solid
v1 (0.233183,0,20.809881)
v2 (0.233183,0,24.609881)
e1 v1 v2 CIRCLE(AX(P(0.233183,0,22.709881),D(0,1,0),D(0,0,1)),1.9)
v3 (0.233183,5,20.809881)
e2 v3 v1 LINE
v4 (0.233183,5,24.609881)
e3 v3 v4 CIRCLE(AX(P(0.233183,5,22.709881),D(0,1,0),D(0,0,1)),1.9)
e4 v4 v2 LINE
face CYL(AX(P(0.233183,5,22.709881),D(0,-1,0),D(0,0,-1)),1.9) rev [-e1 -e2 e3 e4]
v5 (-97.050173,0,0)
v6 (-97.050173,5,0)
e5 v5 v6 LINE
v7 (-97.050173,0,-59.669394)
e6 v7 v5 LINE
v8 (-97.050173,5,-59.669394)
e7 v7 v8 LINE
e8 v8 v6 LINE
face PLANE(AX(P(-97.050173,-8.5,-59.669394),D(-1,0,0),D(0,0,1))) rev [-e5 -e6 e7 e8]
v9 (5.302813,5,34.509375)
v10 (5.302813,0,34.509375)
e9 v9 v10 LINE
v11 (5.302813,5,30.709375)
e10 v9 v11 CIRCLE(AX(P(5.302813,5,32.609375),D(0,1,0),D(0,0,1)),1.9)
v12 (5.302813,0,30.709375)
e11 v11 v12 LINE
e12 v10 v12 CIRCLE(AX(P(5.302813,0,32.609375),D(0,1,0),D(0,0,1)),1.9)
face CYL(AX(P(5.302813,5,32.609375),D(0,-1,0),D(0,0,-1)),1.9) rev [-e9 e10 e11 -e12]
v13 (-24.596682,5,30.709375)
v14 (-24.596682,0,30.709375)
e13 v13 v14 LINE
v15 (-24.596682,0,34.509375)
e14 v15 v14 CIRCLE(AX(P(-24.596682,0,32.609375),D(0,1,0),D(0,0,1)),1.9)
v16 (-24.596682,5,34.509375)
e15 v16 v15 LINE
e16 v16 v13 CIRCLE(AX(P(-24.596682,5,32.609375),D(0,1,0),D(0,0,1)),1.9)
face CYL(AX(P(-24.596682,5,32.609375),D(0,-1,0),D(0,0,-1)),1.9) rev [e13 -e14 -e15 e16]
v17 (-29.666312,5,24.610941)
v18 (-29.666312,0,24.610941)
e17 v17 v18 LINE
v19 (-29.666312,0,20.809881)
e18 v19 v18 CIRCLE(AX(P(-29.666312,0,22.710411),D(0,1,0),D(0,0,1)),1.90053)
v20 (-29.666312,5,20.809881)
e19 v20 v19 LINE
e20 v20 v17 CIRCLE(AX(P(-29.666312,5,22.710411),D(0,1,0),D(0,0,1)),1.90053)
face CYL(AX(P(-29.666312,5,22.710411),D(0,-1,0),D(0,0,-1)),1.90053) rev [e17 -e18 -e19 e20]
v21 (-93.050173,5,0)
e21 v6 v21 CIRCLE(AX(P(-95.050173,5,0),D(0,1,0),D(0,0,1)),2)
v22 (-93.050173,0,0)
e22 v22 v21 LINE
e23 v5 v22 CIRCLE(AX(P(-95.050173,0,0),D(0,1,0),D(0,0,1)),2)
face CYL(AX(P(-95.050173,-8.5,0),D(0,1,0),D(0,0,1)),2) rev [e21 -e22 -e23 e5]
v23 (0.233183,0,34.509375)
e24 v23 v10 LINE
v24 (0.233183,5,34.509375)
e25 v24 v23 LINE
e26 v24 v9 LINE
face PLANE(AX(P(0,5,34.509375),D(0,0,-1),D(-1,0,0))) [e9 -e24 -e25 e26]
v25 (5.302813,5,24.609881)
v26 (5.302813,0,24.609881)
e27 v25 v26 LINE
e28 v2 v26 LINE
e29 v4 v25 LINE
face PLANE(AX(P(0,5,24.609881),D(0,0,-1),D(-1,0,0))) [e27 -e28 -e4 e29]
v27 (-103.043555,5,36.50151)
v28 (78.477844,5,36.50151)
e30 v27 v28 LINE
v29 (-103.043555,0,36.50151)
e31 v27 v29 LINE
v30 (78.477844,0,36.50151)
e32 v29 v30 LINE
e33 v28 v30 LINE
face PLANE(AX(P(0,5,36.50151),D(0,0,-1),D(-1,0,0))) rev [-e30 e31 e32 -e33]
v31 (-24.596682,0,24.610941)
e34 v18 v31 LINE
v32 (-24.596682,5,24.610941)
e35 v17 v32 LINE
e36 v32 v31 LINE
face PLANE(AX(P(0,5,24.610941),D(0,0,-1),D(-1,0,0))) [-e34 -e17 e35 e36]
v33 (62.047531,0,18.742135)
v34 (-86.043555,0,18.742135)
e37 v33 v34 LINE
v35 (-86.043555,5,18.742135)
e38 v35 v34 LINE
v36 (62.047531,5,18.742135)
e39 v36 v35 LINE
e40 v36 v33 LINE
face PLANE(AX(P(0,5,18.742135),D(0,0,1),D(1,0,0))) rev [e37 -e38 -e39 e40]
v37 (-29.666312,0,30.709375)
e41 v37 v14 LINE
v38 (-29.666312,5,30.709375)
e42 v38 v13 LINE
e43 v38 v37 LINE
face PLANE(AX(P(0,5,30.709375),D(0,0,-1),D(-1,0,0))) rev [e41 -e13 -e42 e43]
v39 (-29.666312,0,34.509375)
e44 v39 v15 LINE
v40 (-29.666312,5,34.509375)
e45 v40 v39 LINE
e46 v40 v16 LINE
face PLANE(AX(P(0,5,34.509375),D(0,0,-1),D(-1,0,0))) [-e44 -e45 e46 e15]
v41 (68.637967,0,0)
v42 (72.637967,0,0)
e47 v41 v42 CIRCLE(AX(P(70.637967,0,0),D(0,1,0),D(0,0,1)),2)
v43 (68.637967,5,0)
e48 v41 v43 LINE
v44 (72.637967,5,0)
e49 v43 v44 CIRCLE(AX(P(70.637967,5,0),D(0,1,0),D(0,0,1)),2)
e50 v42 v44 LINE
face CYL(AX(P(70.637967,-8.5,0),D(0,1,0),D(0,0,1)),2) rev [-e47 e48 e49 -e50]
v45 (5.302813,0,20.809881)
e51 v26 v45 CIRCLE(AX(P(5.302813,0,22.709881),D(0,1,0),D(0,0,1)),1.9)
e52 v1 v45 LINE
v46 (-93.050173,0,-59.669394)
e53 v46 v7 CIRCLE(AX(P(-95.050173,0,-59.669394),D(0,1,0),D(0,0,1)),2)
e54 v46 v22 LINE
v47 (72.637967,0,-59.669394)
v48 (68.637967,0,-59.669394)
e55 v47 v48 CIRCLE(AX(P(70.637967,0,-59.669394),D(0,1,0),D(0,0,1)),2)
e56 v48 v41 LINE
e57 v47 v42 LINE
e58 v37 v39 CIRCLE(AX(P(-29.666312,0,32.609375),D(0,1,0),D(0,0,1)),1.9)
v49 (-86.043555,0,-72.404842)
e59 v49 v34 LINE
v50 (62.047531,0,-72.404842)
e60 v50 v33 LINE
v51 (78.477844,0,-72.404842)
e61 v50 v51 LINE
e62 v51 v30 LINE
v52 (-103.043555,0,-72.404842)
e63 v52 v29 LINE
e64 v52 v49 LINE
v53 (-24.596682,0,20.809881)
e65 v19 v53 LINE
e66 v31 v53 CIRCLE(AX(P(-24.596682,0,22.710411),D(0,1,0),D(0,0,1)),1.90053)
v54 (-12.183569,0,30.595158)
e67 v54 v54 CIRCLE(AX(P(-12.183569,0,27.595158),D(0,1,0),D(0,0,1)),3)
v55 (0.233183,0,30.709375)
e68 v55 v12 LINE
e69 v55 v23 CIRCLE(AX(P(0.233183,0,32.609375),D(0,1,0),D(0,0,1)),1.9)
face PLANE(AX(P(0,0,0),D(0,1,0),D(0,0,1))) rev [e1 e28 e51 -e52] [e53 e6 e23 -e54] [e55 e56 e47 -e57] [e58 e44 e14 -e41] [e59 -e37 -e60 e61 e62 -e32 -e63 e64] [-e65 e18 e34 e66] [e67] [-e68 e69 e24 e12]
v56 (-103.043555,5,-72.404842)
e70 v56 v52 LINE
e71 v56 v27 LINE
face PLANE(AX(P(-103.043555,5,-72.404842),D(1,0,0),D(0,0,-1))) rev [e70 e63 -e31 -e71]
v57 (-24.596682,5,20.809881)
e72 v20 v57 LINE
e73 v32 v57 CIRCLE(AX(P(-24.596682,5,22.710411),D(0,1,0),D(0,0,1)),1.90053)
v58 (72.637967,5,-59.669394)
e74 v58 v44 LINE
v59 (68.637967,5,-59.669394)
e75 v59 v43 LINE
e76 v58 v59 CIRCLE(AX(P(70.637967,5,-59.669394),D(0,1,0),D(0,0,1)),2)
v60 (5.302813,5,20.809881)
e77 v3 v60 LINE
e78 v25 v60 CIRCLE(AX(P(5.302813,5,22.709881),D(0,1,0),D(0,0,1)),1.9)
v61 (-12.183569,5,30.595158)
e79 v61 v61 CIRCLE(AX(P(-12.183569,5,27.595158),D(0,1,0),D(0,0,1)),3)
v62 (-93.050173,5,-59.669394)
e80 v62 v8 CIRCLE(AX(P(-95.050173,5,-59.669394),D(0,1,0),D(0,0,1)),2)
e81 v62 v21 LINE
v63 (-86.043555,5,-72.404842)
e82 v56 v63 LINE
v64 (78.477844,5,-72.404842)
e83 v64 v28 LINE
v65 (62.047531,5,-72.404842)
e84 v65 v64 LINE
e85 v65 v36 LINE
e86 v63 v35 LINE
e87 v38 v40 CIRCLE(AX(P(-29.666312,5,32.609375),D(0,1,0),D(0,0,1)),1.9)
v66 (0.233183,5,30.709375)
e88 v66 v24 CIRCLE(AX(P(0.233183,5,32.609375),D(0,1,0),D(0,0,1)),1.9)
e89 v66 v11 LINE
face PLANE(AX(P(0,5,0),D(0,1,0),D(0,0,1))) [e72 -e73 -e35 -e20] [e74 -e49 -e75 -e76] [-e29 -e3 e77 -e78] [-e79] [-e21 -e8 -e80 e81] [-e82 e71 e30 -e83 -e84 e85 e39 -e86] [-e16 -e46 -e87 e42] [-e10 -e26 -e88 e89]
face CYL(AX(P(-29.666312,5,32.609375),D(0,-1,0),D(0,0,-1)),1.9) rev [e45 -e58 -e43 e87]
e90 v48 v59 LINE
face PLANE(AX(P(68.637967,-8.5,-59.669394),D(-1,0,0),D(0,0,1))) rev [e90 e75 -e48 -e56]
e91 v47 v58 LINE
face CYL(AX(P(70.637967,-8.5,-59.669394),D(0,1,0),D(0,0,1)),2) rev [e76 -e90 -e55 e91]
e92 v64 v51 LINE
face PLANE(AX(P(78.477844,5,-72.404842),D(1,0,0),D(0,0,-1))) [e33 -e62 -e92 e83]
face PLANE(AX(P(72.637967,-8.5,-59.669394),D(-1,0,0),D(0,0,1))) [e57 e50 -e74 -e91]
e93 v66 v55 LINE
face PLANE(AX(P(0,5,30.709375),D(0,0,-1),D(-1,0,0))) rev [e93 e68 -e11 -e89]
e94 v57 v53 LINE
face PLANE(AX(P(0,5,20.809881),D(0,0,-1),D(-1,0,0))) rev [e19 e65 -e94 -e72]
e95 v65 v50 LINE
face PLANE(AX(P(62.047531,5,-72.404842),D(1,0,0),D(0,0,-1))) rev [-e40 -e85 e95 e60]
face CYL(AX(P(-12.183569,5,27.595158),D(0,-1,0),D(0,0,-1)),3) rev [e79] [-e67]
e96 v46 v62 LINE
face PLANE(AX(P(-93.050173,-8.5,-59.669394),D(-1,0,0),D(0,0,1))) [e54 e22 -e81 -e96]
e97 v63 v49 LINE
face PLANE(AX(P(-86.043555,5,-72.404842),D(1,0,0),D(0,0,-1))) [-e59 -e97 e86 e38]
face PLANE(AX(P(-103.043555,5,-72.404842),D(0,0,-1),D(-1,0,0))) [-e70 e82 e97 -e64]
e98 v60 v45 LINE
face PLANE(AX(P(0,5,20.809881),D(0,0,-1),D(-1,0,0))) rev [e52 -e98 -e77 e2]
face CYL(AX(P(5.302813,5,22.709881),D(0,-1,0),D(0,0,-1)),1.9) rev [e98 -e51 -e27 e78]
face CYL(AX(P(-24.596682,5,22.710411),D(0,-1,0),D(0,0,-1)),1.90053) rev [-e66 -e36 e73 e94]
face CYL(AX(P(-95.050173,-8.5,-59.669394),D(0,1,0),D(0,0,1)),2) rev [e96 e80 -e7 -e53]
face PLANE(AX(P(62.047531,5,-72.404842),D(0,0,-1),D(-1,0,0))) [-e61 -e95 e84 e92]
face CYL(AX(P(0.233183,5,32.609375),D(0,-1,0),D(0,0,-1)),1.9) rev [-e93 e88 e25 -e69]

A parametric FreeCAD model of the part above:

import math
import FreeCAD as App
import Part
import Sketcher
Q = App.Units.Quantity

doc = App.newDocument("Part")
body = doc.addObject("PartDesign::Body", "Body")

# Sketch on XZ plane
sketch1 = body.newObject("Sketcher::SketchObject", "Sketch")
sketch1.AttachmentSupport = (doc.getObject("XZ_Plane"), [""])
sketch1.MapMode = "FlatFace"
sketch1.addGeometry([
    Part.LineSegment(App.Vector(-86, -72.4, 0), App.Vector(-103, -72.4, 0)),  # 0
    Part.LineSegment(App.Vector(-103, -72.4, 0), App.Vector(-103, 36.5, 0)),  # 1
    Part.LineSegment(App.Vector(-103, 36.5, 0), App.Vector(78.5, 36.5, 0)),  # 2
    Part.LineSegment(App.Vector(78.5, 36.5, 0), App.Vector(78.5, -72.4, 0)),  # 3
    Part.LineSegment(App.Vector(78.5, -72.4, 0), App.Vector(62, -72.4, 0)),  # 4
    Part.LineSegment(App.Vector(62, -72.4, 0), App.Vector(62, 18.7, 0)),  # 5
    Part.LineSegment(App.Vector(62, 18.7, 0), App.Vector(-86, 18.7, 0)),  # 6
    Part.LineSegment(App.Vector(-86, 18.7, 0), App.Vector(-86, -72.4, 0)),  # 7
    Part.LineSegment(App.Vector(-24.6, 34.5, 0), App.Vector(-29.7, 34.5, 0)),  # 8
    Part.ArcOfCircle(Part.Circle(App.Vector(-29.7, 32.6, 0), App.Vector(0, 0, 1), 1.9), math.radians(90), math.radians(270)),  # 9
    Part.LineSegment(App.Vector(-29.7, 30.7, 0), App.Vector(-24.6, 30.7, 0)),  # 10
    Part.ArcOfCircle(Part.Circle(App.Vector(-24.6, 32.6, 0), App.Vector(0, 0, 1), 1.9), math.radians(-90), math.radians(90)),  # 11
    Part.LineSegment(App.Vector(5.3, 34.5, 0), App.Vector(0.2, 34.5, 0)),  # 12
    Part.ArcOfCircle(Part.Circle(App.Vector(0.2, 32.6, 0), App.Vector(0, 0, 1), 1.9), math.radians(90), math.radians(270)),  # 13
    Part.LineSegment(App.Vector(0.2, 30.7, 0), App.Vector(5.3, 30.7, 0)),  # 14
    Part.ArcOfCircle(Part.Circle(App.Vector(5.3, 32.6, 0), App.Vector(0, 0, 1), 1.9), math.radians(-90), math.radians(90)),  # 15
    Part.Circle(App.Vector(-12.2, 27.6, 0), App.Vector(0, 0, 1), 3),  # 16
    Part.LineSegment(App.Vector(-24.6, 24.6, 0), App.Vector(-29.7, 24.6, 0)),  # 17
    Part.ArcOfCircle(Part.Circle(App.Vector(-29.7, 22.7, 0), App.Vector(0, 0, 1), 1.9), math.radians(90), math.radians(270)),  # 18
    Part.LineSegment(App.Vector(-29.7, 20.8, 0), App.Vector(-24.6, 20.8, 0)),  # 19
    Part.ArcOfCircle(Part.Circle(App.Vector(-24.6, 22.7, 0), App.Vector(0, 0, 1), 1.9), math.radians(-90), math.radians(90)),  # 20
    Part.ArcOfCircle(Part.Circle(App.Vector(0.2, 22.7, 0), App.Vector(0, 0, 1), 1.9), math.radians(90), math.radians(270)),  # 21
    Part.LineSegment(App.Vector(0.2, 20.8, 0), App.Vector(5.3, 20.8, 0)),  # 22
    Part.ArcOfCircle(Part.Circle(App.Vector(5.3, 22.7, 0), App.Vector(0, 0, 1), 1.9), math.radians(-90), math.radians(90)),  # 23
    Part.LineSegment(App.Vector(5.3, 24.6, 0), App.Vector(0.2, 24.6, 0)),  # 24
], False)
sketch1.addConstraint([
    Sketcher.Constraint("Coincident", 0, 2, 1, 1),
    Sketcher.Constraint("Coincident", 1, 2, 2, 1),
    Sketcher.Constraint("Coincident", 2, 2, 3, 1),
    Sketcher.Constraint("Coincident", 3, 2, 4, 1),
    Sketcher.Constraint("Coincident", 4, 2, 5, 1),
    Sketcher.Constraint("Coincident", 5, 2, 6, 1),
    Sketcher.Constraint("Coincident", 6, 2, 7, 1),
    Sketcher.Constraint("Coincident", 7, 2, 0, 1),
    Sketcher.Constraint("Tangent", 8, 2, 9, 1),
    Sketcher.Constraint("Tangent", 9, 2, 10, 1),
    Sketcher.Constraint("Tangent", 10, 2, 11, 1),
    Sketcher.Constraint("Tangent", 11, 2, 8, 1),
    Sketcher.Constraint("Tangent", 12, 2, 13, 1),
    Sketcher.Constraint("Tangent", 13, 2, 14, 1),
    Sketcher.Constraint("Tangent", 14, 2, 15, 1),
    Sketcher.Constraint("Tangent", 15, 2, 12, 1),
    Sketcher.Constraint("Tangent", 17, 2, 18, 1),
    Sketcher.Constraint("Tangent", 18, 2, 19, 1),
    Sketcher.Constraint("Tangent", 19, 2, 20, 1),
    Sketcher.Constraint("Tangent", 20, 2, 17, 1),
    Sketcher.Constraint("Tangent", 21, 2, 22, 1),
    Sketcher.Constraint("Tangent", 22, 2, 23, 1),
    Sketcher.Constraint("Tangent", 23, 2, 24, 1),
    Sketcher.Constraint("Tangent", 24, 2, 21, 1),
    Sketcher.Constraint("Horizontal", 0),
    Sketcher.Constraint("Vertical", 1),
    Sketcher.Constraint("Horizontal", 2),
    Sketcher.Constraint("Vertical", 3),
    Sketcher.Constraint("Horizontal", 4),
    Sketcher.Constraint("Vertical", 5),
    Sketcher.Constraint("Horizontal", 6),
    Sketcher.Constraint("Vertical", 7),
    Sketcher.Constraint("Horizontal", 8),
    Sketcher.Constraint("Horizontal", 10),
    Sketcher.Constraint("Horizontal", 12),
    Sketcher.Constraint("Horizontal", 14),
    Sketcher.Constraint("Horizontal", 17),
    Sketcher.Constraint("Horizontal", 19),
    Sketcher.Constraint("Horizontal", 22),
    Sketcher.Constraint("Horizontal", 24),
    Sketcher.Constraint("Equal", 11, 13),
    Sketcher.Constraint("Equal", 15, 21),
    Sketcher.Constraint("Horizontal", 11, 3, 13, 3),
    Sketcher.Constraint("Horizontal", 0, 2, 3, 2),
    Sketcher.Constraint("Horizontal", 19, 2, 21, 2),
    Sketcher.Constraint("Vertical", 9, 3, 18, 3),
    Sketcher.Constraint("Vertical", 11, 3, 20, 3),
    Sketcher.Constraint("Vertical", 13, 3, 21, 3),
    Sketcher.Constraint("Vertical", 15, 3, 23, 3),
    Sketcher.Constraint("Equal", 10, 12),
    Sketcher.Constraint("Diameter", 16, Q("6 mm")),
    Sketcher.Constraint("Radius", 9, Q("1.9 mm")),
    Sketcher.Constraint("DistanceX", 0, 2, 0, 1, Q("17 mm")),
    Sketcher.Constraint("DistanceY", 0, 2, 16, 3, Q("100 mm")),
    Sketcher.Constraint("Radius", 18, Q("1.90053 mm")),
    Sketcher.Constraint("DistanceX", 2, 1, 2, 2, Q("181.521399 mm")),
    Sketcher.Constraint("DistanceX", 8, 2, 8, 1, Q("5.06963 mm")),
    Sketcher.Constraint("DistanceY", 1, 1, 1, 2, Q("108.906352 mm")),
    Sketcher.Constraint("DistanceY", 18, 3, 1, 2, Q("13.791099 mm")),
    Sketcher.Constraint("DistanceX", 4, 2, 4, 1, Q("16.430313 mm")),
    Sketcher.Constraint("DistanceY", 5, 1, 5, 2, Q("91.146977 mm")),
    Sketcher.Constraint("DistanceX", 16, 3, -1, 1, Q("12.183569 mm")),
    Sketcher.Constraint("DistanceY", -1, 1, 16, 3, Q("27.595158 mm")),
    Sketcher.Constraint("DistanceX", -1, 1, 4, 2, Q("62.047531 mm")),
    Sketcher.Constraint("DistanceX", 16, 3, 13, 3, Q("12.416751 mm")),
    Sketcher.Constraint("DistanceY", 5, 2, 15, 3, Q("13.86724 mm")),
    Sketcher.Constraint("DistanceX", 9, 3, -1, 1, Q("29.666312 mm")),
])
pad1 = body.newObject("PartDesign::Pad", "Pad")
pad1.Profile = sketch1
pad1.Length = 5
pad1.Reversed = True

# Sketch on XZ plane
sketch2 = body.newObject("Sketcher::SketchObject", "Sketch001")
sketch2.AttachmentSupport = (doc.getObject("XZ_Plane"), [""])
sketch2.MapMode = "FlatFace"
sketch2.addGeometry([
    Part.LineSegment(App.Vector(-93.1, 0, 0), App.Vector(-93.1, -59.7, 0)),
    Part.ArcOfCircle(Part.Circle(App.Vector(-95.1, -59.7, 0), App.Vector(0, 0, 1), 2), math.radians(180), math.radians(360)),
    Part.LineSegment(App.Vector(-97.1, -59.7, 0), App.Vector(-97.1, 0, 0)),
    Part.ArcOfCircle(Part.Circle(App.Vector(-95.1, 0, 0), App.Vector(0, 0, 1), 2), math.radians(0), math.radians(180)),
], False)
sketch2.addConstraint([
    Sketcher.Constraint("Tangent", 0, 2, 1, 2),
    Sketcher.Constraint("Tangent", 1, 1, 2, 1),
    Sketcher.Constraint("Tangent", 2, 2, 3, 2),
    Sketcher.Constraint("Tangent", 3, 1, 0, 1),
    Sketcher.Constraint("Vertical", 0),
    Sketcher.Constraint("Vertical", 2),
    Sketcher.Constraint("PointOnObject", 3, 3, -1),
    Sketcher.Constraint("Radius", 1, Q("2 mm")),
    Sketcher.Constraint("DistanceY", 0, 2, 0, 1, Q("59.669394 mm")),
    Sketcher.Constraint("DistanceX", 1, 3, -1, 1, Q("95.050173 mm")),
])
pocket1 = body.newObject("PartDesign::Pocket", "Pocket")
pocket1.Profile = sketch2
pocket1.Length = 17
pocket1.Midplane = True

# Sketch on XZ plane
sketch3 = body.newObject("Sketcher::SketchObject", "Sketch002")
sketch3.AttachmentSupport = (doc.getObject("XZ_Plane"), [""])
sketch3.MapMode = "FlatFace"
sketch3.addGeometry([
    Part.LineSegment(App.Vector(72.6, 0, 0), App.Vector(72.6, -59.7, 0)),
    Part.ArcOfCircle(Part.Circle(App.Vector(70.6, -59.7, 0), App.Vector(0, 0, 1), 2), math.radians(180), math.radians(360)),
    Part.LineSegment(App.Vector(68.6, -59.7, 0), App.Vector(68.6, 0, 0)),
    Part.ArcOfCircle(Part.Circle(App.Vector(70.6, 0, 0), App.Vector(0, 0, 1), 2), math.radians(0), math.radians(180)),
], False)
sketch3.addConstraint([
    Sketcher.Constraint("Tangent", 0, 2, 1, 2),
    Sketcher.Constraint("Tangent", 1, 1, 2, 1),
    Sketcher.Constraint("Tangent", 2, 2, 3, 2),
    Sketcher.Constraint("Tangent", 3, 1, 0, 1),
    Sketcher.Constraint("Vertical", 0),
    Sketcher.Constraint("Vertical", 2),
    Sketcher.Constraint("PointOnObject", 3, 3, -1),
    Sketcher.Constraint("Radius", 1, Q("2 mm")),
    Sketcher.Constraint("DistanceY", 0, 2, 0, 1, Q("59.669394 mm")),
    Sketcher.Constraint("DistanceX", -1, 1, 1, 3, Q("70.637967 mm")),
])
pocket2 = body.newObject("PartDesign::Pocket", "Pocket001")
pocket2.Profile = sketch3
pocket2.Length = 17
pocket2.Midplane = True

doc.recompute()
